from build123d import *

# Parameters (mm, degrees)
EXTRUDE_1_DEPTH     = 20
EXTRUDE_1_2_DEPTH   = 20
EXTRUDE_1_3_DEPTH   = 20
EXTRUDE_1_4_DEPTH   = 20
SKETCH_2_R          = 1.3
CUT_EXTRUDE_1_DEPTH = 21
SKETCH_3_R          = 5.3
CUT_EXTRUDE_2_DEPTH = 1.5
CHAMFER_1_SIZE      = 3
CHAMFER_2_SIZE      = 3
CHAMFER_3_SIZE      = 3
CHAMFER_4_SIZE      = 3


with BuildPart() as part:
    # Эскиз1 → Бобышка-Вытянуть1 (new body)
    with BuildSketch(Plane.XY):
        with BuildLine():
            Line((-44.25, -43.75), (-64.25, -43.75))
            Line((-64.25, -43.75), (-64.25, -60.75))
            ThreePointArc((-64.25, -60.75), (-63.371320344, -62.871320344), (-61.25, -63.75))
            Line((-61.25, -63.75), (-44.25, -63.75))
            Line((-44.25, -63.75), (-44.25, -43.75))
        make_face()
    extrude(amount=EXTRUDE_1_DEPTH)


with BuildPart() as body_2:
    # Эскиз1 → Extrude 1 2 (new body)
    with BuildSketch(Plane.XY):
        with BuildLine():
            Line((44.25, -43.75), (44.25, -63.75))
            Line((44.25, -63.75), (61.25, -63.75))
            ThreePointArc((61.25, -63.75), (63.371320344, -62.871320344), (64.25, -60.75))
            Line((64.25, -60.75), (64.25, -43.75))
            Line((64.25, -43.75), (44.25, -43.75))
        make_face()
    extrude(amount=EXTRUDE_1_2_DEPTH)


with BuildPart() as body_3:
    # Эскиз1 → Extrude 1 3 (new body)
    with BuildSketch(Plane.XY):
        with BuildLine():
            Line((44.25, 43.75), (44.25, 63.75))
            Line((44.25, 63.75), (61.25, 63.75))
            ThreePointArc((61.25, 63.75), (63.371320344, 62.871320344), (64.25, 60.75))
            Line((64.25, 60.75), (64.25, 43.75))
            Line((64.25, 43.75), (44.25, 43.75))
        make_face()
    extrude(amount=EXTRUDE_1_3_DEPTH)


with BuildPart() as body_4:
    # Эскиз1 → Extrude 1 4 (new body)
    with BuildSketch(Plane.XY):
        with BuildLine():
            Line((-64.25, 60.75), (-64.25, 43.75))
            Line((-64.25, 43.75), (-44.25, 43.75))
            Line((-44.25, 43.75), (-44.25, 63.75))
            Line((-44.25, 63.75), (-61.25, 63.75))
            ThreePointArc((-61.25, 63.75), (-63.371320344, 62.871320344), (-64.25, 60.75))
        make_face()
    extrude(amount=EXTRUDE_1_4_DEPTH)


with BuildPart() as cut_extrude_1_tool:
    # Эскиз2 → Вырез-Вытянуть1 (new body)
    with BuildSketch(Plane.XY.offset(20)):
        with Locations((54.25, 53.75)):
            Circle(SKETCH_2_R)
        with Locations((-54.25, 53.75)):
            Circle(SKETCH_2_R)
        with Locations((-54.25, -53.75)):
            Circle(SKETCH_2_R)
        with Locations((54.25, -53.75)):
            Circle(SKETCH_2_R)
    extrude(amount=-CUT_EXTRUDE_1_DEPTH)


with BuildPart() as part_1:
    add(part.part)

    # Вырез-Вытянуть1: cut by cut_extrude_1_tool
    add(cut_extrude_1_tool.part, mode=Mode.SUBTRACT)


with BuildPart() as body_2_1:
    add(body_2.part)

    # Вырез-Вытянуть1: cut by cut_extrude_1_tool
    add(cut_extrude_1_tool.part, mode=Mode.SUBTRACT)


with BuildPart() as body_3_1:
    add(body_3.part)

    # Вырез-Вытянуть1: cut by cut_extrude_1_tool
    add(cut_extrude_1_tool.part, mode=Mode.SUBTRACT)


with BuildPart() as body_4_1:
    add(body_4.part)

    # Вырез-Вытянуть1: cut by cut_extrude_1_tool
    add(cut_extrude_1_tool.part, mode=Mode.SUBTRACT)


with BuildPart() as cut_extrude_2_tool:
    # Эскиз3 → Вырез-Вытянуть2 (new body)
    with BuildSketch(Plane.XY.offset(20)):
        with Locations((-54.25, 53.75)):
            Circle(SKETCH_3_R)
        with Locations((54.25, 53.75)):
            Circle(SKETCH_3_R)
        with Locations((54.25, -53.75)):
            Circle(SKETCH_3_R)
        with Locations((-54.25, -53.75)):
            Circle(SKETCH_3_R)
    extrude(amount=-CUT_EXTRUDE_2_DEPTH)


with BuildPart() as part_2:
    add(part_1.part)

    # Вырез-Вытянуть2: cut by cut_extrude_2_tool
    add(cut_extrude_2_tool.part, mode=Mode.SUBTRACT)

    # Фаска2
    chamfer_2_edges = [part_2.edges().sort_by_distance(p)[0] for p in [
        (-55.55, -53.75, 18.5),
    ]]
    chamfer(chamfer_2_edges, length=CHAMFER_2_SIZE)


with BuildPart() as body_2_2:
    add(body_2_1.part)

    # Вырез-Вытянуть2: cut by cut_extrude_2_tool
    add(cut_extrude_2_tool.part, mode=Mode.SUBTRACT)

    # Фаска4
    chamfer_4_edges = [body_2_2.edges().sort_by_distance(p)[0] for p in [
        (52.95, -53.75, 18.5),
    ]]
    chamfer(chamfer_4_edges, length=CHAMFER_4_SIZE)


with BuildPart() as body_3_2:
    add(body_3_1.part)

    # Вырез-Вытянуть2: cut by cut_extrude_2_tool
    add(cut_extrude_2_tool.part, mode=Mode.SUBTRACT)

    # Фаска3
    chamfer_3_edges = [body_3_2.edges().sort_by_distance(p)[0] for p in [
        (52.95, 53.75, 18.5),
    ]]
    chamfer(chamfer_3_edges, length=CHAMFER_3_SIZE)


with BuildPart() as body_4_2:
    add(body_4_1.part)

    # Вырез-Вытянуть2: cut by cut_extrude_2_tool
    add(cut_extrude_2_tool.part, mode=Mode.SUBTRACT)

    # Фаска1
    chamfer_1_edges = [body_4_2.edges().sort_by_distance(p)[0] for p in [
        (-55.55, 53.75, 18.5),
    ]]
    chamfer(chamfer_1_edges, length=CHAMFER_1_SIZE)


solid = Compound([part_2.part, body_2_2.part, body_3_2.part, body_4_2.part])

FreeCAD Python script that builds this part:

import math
import FreeCAD as App
import Part
import Sketcher
Q = App.Units.Quantity


def edges_at(feature, points):
    """Names of the edges that pass closest to the given points."""
    edges = feature.Shape.Edges
    near = lambda p: min(range(len(edges)), key=lambda i: edges[i].distToShape(Part.Vertex(*p))[0])
    return sorted({f"Edge{near(p) + 1}" for p in points})

doc = App.newDocument("Part")
body = doc.addObject("PartDesign::Body", "Body")

sketch1 = doc.addObject("Sketcher::SketchObject", "Sketch")
body.addObject(sketch1)
sketch1.AttachmentSupport = (doc.XY_Plane, [""])
sketch1.MapMode = "FlatFace"
sketch1.addGeometry(Part.LineSegment(App.Vector(-44.25, -43.75, 0), App.Vector(-64.25, -43.75, 0)), False)
sketch1.addGeometry(Part.LineSegment(App.Vector(-64.25, -43.75, 0), App.Vector(-64.25, -60.75, 0)), False)
sketch1.addGeometry(Part.ArcOfCircle(Part.Circle(App.Vector(-61.25, -60.75, 0), App.Vector(0, 0, 1), 3), math.radians(180), math.radians(270)), False)
sketch1.addGeometry(Part.LineSegment(App.Vector(-61.25, -63.75, 0), App.Vector(-44.25, -63.75, 0)), False)
sketch1.addGeometry(Part.LineSegment(App.Vector(-44.25, -63.75, 0), App.Vector(-44.25, -43.75, 0)), False)
sketch1.addConstraint(Sketcher.Constraint("Coincident", 0, 2, 1, 1))
sketch1.addConstraint(Sketcher.Constraint("Tangent", 1, 2, 2, 1))
sketch1.addConstraint(Sketcher.Constraint("Tangent", 2, 2, 3, 1))
sketch1.addConstraint(Sketcher.Constraint("Coincident", 3, 2, 4, 1))
sketch1.addConstraint(Sketcher.Constraint("Coincident", 4, 2, 0, 1))
sketch1.addConstraint(Sketcher.Constraint("Horizontal", 0))
sketch1.addConstraint(Sketcher.Constraint("Vertical", 1))
sketch1.addConstraint(Sketcher.Constraint("Horizontal", 3))
sketch1.addConstraint(Sketcher.Constraint("Vertical", 4))
sketch1.addConstraint(Sketcher.Constraint("Equal", 3, 1))
sketch1.addConstraint(Sketcher.Constraint("Radius", 2, Q("3 mm")))
sketch1.addConstraint(Sketcher.Constraint("DistanceX", 0, 2, 0, 1, Q("20 mm")))
sketch1.addConstraint(Sketcher.Constraint("DistanceX", 2, 3, -1, 1, Q("61.25 mm")))
sketch1.addConstraint(Sketcher.Constraint("DistanceY", 2, 3, -1, 1, Q("60.75 mm")))
pad1 = doc.addObject("PartDesign::Pad", "Pad")
body.addObject(pad1)
pad1.Profile = sketch1
pad1.Length = 20
body2 = doc.addObject("PartDesign::Body", "Body001")

sketch2 = doc.addObject("Sketcher::SketchObject", "Sketch001")
body2.addObject(sketch2)
sketch2.AttachmentSupport = (doc.getObject("XY_Plane001"), [""])
sketch2.MapMode = "FlatFace"
sketch2.addGeometry(Part.LineSegment(App.Vector(44.25, -43.75, 0), App.Vector(44.25, -63.75, 0)), False)
sketch2.addGeometry(Part.LineSegment(App.Vector(44.25, -63.75, 0), App.Vector(61.25, -63.75, 0)), False)
sketch2.addGeometry(Part.ArcOfCircle(Part.Circle(App.Vector(61.25, -60.75, 0), App.Vector(0, 0, 1), 3), math.radians(-90), math.radians(0)), False)
sketch2.addGeometry(Part.LineSegment(App.Vector(64.25, -60.75, 0), App.Vector(64.25, -43.75, 0)), False)
sketch2.addGeometry(Part.LineSegment(App.Vector(64.25, -43.75, 0), App.Vector(44.25, -43.75, 0)), False)
sketch2.addConstraint(Sketcher.Constraint("Coincident", 0, 2, 1, 1))
sketch2.addConstraint(Sketcher.Constraint("Tangent", 1, 2, 2, 1))
sketch2.addConstraint(Sketcher.Constraint("Tangent", 2, 2, 3, 1))
sketch2.addConstraint(Sketcher.Constraint("Coincident", 3, 2, 4, 1))
sketch2.addConstraint(Sketcher.Constraint("Coincident", 4, 2, 0, 1))
sketch2.addConstraint(Sketcher.Constraint("Vertical", 0))
sketch2.addConstraint(Sketcher.Constraint("Horizontal", 1))
sketch2.addConstraint(Sketcher.Constraint("Vertical", 3))
sketch2.addConstraint(Sketcher.Constraint("Horizontal", 4))
sketch2.addConstraint(Sketcher.Constraint("Equal", 4, 0))
sketch2.addConstraint(Sketcher.Constraint("Radius", 2, Q("3 mm")))
sketch2.addConstraint(Sketcher.Constraint("DistanceX", 1, 1, 1, 2, Q("17 mm")))
sketch2.addConstraint(Sketcher.Constraint("DistanceX", -1, 1, 2, 3, Q("61.25 mm")))
sketch2.addConstraint(Sketcher.Constraint("DistanceY", 2, 3, -1, 1, Q("60.75 mm")))
pad2 = doc.addObject("PartDesign::Pad", "Pad001")
body2.addObject(pad2)
pad2.Profile = sketch2
pad2.Length = 20
body3 = doc.addObject("PartDesign::Body", "Body002")

sketch3 = doc.addObject("Sketcher::SketchObject", "Sketch002")
body3.addObject(sketch3)
sketch3.AttachmentSupport = (doc.getObject("XY_Plane002"), [""])
sketch3.MapMode = "FlatFace"
sketch3.addGeometry(Part.LineSegment(App.Vector(44.25, 63.75, 0), App.Vector(44.25, 43.75, 0)), False)
sketch3.addGeometry(Part.LineSegment(App.Vector(44.25, 43.75, 0), App.Vector(64.25, 43.75, 0)), False)
sketch3.addGeometry(Part.LineSegment(App.Vector(64.25, 43.75, 0), App.Vector(64.25, 60.75, 0)), False)
sketch3.addGeometry(Part.ArcOfCircle(Part.Circle(App.Vector(61.25, 60.75, 0), App.Vector(0, 0, 1), 3), math.radians(0), math.radians(90)), False)
sketch3.addGeometry(Part.LineSegment(App.Vector(61.25, 63.75, 0), App.Vector(44.25, 63.75, 0)), False)
sketch3.addConstraint(Sketcher.Constraint("Coincident", 0, 2, 1, 1))
sketch3.addConstraint(Sketcher.Constraint("Coincident", 1, 2, 2, 1))
sketch3.addConstraint(Sketcher.Constraint("Tangent", 2, 2, 3, 1))
sketch3.addConstraint(Sketcher.Constraint("Tangent", 3, 2, 4, 1))
sketch3.addConstraint(Sketcher.Constraint("Coincident", 4, 2, 0, 1))
sketch3.addConstraint(Sketcher.Constraint("Vertical", 0))
sketch3.addConstraint(Sketcher.Constraint("Horizontal", 1))
sketch3.addConstraint(Sketcher.Constraint("Vertical", 2))
sketch3.addConstraint(Sketcher.Constraint("Horizontal", 4))
sketch3.addConstraint(Sketcher.Constraint("Equal", 1, 0))
sketch3.addConstraint(Sketcher.Constraint("Radius", 3, Q("3 mm")))
sketch3.addConstraint(Sketcher.Constraint("DistanceX", 1, 1, 1, 2, Q("20 mm")))
sketch3.addConstraint(Sketcher.Constraint("DistanceX", -1, 1, 3, 3, Q("61.25 mm")))
sketch3.addConstraint(Sketcher.Constraint("DistanceY", -1, 1, 3, 3, Q("60.75 mm")))
pad3 = doc.addObject("PartDesign::Pad", "Pad002")
body3.addObject(pad3)
pad3.Profile = sketch3
pad3.Length = 20
body4 = doc.addObject("PartDesign::Body", "Body003")

sketch4 = doc.addObject("Sketcher::SketchObject", "Sketch003")
body4.addObject(sketch4)
sketch4.AttachmentSupport = (doc.getObject("XY_Plane003"), [""])
sketch4.MapMode = "FlatFace"
sketch4.addGeometry(Part.LineSegment(App.Vector(-64.25, 60.75, 0), App.Vector(-64.25, 43.75, 0)), False)
sketch4.addGeometry(Part.LineSegment(App.Vector(-64.25, 43.75, 0), App.Vector(-44.25, 43.75, 0)), False)
sketch4.addGeometry(Part.LineSegment(App.Vector(-44.25, 43.75, 0), App.Vector(-44.25, 63.75, 0)), False)
sketch4.addGeometry(Part.LineSegment(App.Vector(-44.25, 63.75, 0), App.Vector(-61.25, 63.75, 0)), False)
sketch4.addGeometry(Part.ArcOfCircle(Part.Circle(App.Vector(-61.25, 60.75, 0), App.Vector(0, 0, 1), 3), math.radians(90), math.radians(180)), False)
sketch4.addConstraint(Sketcher.Constraint("Coincident", 0, 2, 1, 1))
sketch4.addConstraint(Sketcher.Constraint("Coincident", 1, 2, 2, 1))
sketch4.addConstraint(Sketcher.Constraint("Coincident", 2, 2, 3, 1))
sketch4.addConstraint(Sketcher.Constraint("Tangent", 3, 2, 4, 1))
sketch4.addConstraint(Sketcher.Constraint("Tangent", 4, 2, 0, 1))
sketch4.addConstraint(Sketcher.Constraint("Vertical", 0))
sketch4.addConstraint(Sketcher.Constraint("Horizontal", 1))
sketch4.addConstraint(Sketcher.Constraint("Vertical", 2))
sketch4.addConstraint(Sketcher.Constraint("Horizontal", 3))
sketch4.addConstraint(Sketcher.Constraint("Equal", 3, 0))
sketch4.addConstraint(Sketcher.Constraint("Radius", 4, Q("3 mm")))
sketch4.addConstraint(Sketcher.Constraint("DistanceX", 1, 1, 1, 2, Q("20 mm")))
sketch4.addConstraint(Sketcher.Constraint("DistanceX", 4, 3, -1, 1, Q("61.25 mm")))
sketch4.addConstraint(Sketcher.Constraint("DistanceY", -1, 1, 4, 3, Q("60.75 mm")))
pad4 = doc.addObject("PartDesign::Pad", "Pad003")
body4.addObject(pad4)
pad4.Profile = sketch4
pad4.Length = 20
body5 = doc.addObject("PartDesign::Body", "Body004")
body5.AllowCompound = True

sketch5 = doc.addObject("Sketcher::SketchObject", "Sketch004")
body5.addObject(sketch5)
sketch5.AttachmentSupport = (doc.getObject("XY_Plane004"), [""])
sketch5.MapMode = "FlatFace"
sketch5.AttachmentOffset = App.Placement(App.Vector(0, 0, 20), App.Rotation())
sketch5.addGeometry(Part.Circle(App.Vector(54.25, 53.75, 0), App.Vector(0, 0, 1), 1.3), False)
sketch5.addGeometry(Part.Circle(App.Vector(-54.25, 53.75, 0), App.Vector(0, 0, 1), 1.3), False)
sketch5.addGeometry(Part.Circle(App.Vector(-54.25, -53.75, 0), App.Vector(0, 0, 1), 1.3), False)
sketch5.addGeometry(Part.Circle(App.Vector(54.25, -53.75, 0), App.Vector(0, 0, 1), 1.3), False)
sketch5.addConstraint(Sketcher.Constraint("Equal", 0, 1))
sketch5.addConstraint(Sketcher.Constraint("Equal", 1, 2))
sketch5.addConstraint(Sketcher.Constraint("Equal", 2, 3))
sketch5.addConstraint(Sketcher.Constraint("Symmetric", 0, 3, 2, 3, -1, 1))
sketch5.addConstraint(Sketcher.Constraint("Symmetric", 1, 3, 3, 3, -1, 1))
sketch5.addConstraint(Sketcher.Constraint("Symmetric", 0, 3, 1, 3, -2))
sketch5.addConstraint(Sketcher.Constraint("Diameter", 0, Q("2.6 mm")))
sketch5.addConstraint(Sketcher.Constraint("DistanceX", 1, 3, 0, 3, Q("108.5 mm")))
sketch5.addConstraint(Sketcher.Constraint("DistanceY", 2, 3, 1, 3, Q("107.5 mm")))
pad5 = doc.addObject("PartDesign::Pad", "Pad004")
body5.addObject(pad5)
pad5.Profile = sketch5
pad5.Length = 21
pad5.Reversed = True
doc.recompute()

body6 = doc.addObject("PartDesign::Body", "Body005")
body6.BaseFeature = body5
boolean = doc.addObject("PartDesign::Boolean", "Boolean")
body.addObject(boolean)
boolean.Type = "Cut"
boolean.addObjects([body6])
doc.recompute()

body7 = doc.addObject("PartDesign::Body", "Body006")
body7.BaseFeature = body5
boolean2 = doc.addObject("PartDesign::Boolean", "Boolean001")
body2.addObject(boolean2)
boolean2.Type = "Cut"
boolean2.addObjects([body7])
doc.recompute()

body8 = doc.addObject("PartDesign::Body", "Body007")
body8.BaseFeature = body5
boolean3 = doc.addObject("PartDesign::Boolean", "Boolean002")
body3.addObject(boolean3)
boolean3.Type = "Cut"
boolean3.addObjects([body8])
doc.recompute()

boolean4 = doc.addObject("PartDesign::Boolean", "Boolean003")
body4.addObject(boolean4)
boolean4.Type = "Cut"
boolean4.addObjects([body5])
body9 = doc.addObject("PartDesign::Body", "Body008")
body9.AllowCompound = True

sketch6 = doc.addObject("Sketcher::SketchObject", "Sketch005")
body9.addObject(sketch6)
sketch6.AttachmentSupport = (doc.getObject("XY_Plane008"), [""])
sketch6.MapMode = "FlatFace"
sketch6.AttachmentOffset = App.Placement(App.Vector(0, 0, 20), App.Rotation())
sketch6.addGeometry(Part.Circle(App.Vector(-54.25, 53.75, 0), App.Vector(0, 0, 1), 5.3), False)
sketch6.addGeometry(Part.Circle(App.Vector(54.25, 53.75, 0), App.Vector(0, 0, 1), 5.3), False)
sketch6.addGeometry(Part.Circle(App.Vector(54.25, -53.75, 0), App.Vector(0, 0, 1), 5.3), False)
sketch6.addGeometry(Part.Circle(App.Vector(-54.25, -53.75, 0), App.Vector(0, 0, 1), 5.3), False)
sketch6.addConstraint(Sketcher.Constraint("Equal", 0, 1))
sketch6.addConstraint(Sketcher.Constraint("Equal", 1, 2))
sketch6.addConstraint(Sketcher.Constraint("Equal", 2, 3))
sketch6.addConstraint(Sketcher.Constraint("Symmetric", 0, 3, 2, 3, -1, 1))
sketch6.addConstraint(Sketcher.Constraint("Symmetric", 1, 3, 3, 3, -1, 1))
sketch6.addConstraint(Sketcher.Constraint("Symmetric", 0, 3, 1, 3, -2))
sketch6.addConstraint(Sketcher.Constraint("Diameter", 0, Q("10.6 mm")))
sketch6.addConstraint(Sketcher.Constraint("DistanceX", 0, 3, 1, 3, Q("108.5 mm")))
sketch6.addConstraint(Sketcher.Constraint("DistanceY", 2, 3, 1, 3, Q("107.5 mm")))
pad6 = doc.addObject("PartDesign::Pad", "Pad005")
body9.addObject(pad6)
pad6.Profile = sketch6
pad6.Length = 1.5
pad6.Reversed = True
doc.recompute()

body10 = doc.addObject("PartDesign::Body", "Body009")
body10.BaseFeature = body9
boolean5 = doc.addObject("PartDesign::Boolean", "Boolean004")
body.addObject(boolean5)
boolean5.Type = "Cut"
boolean5.addObjects([body10])
doc.recompute()

chamfer = doc.addObject("PartDesign::Chamfer", "Chamfer")
body.addObject(chamfer)
chamfer.Base = (boolean5, edges_at(boolean5, [(-55.55, -53.75, 18.5)]))
chamfer.Size = 3
doc.recompute()

body11 = doc.addObject("PartDesign::Body", "Body010")
body11.BaseFeature = body9
boolean6 = doc.addObject("PartDesign::Boolean", "Boolean005")
body2.addObject(boolean6)
boolean6.Type = "Cut"
boolean6.addObjects([body11])
doc.recompute()

chamfer2 = doc.addObject("PartDesign::Chamfer", "Chamfer001")
body2.addObject(chamfer2)
chamfer2.Base = (boolean6, edges_at(boolean6, [(52.95, -53.75, 18.5)]))
chamfer2.Size = 3
doc.recompute()

body12 = doc.addObject("PartDesign::Body", "Body011")
body12.BaseFeature = body9
boolean7 = doc.addObject("PartDesign::Boolean", "Boolean006")
body3.addObject(boolean7)
boolean7.Type = "Cut"
boolean7.addObjects([body12])
doc.recompute()

chamfer3 = doc.addObject("PartDesign::Chamfer", "Chamfer002")
body3.addObject(chamfer3)
chamfer3.Base = (boolean7, edges_at(boolean7, [(52.95, 53.75, 18.5)]))
chamfer3.Size = 3
doc.recompute()

boolean8 = doc.addObject("PartDesign::Boolean", "Boolean007")
body4.addObject(boolean8)
boolean8.Type = "Cut"
boolean8.addObjects([body9])
doc.recompute()

chamfer4 = doc.addObject("PartDesign::Chamfer", "Chamfer003")
body4.addObject(chamfer4)
chamfer4.Base = (boolean8, edges_at(boolean8, [(-55.55, 53.75, 18.5)]))
chamfer4.Size = 3

doc.recompute()
